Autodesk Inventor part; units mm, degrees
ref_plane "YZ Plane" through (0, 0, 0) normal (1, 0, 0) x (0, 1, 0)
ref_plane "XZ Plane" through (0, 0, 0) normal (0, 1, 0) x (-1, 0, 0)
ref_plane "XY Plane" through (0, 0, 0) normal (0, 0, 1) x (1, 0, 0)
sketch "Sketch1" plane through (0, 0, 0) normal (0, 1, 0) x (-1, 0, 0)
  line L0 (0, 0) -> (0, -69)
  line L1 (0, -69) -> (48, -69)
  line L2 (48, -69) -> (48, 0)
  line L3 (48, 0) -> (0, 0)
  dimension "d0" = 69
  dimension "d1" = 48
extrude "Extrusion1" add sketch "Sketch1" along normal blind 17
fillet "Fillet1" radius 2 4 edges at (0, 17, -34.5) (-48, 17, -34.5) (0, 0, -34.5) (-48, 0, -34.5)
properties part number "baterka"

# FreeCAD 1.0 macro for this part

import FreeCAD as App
import Part
import Sketcher

V = App.Vector


def edges_at(feature, points):
    """Names of the edges that pass closest to the given points."""
    edges = feature.Shape.Edges
    near = lambda p: min(range(len(edges)), key=lambda i: edges[i].distToShape(Part.Vertex(*p))[0])
    return sorted({f"Edge{near(p) + 1}" for p in points})


def add_polygon(sketch, points):
    """Adds a closed chain of lines whose ends are joined by coincident constraints."""
    first, n = sketch.GeometryCount, len(points)
    for a, b in zip(points, points[1:] + points[:1]):
        sketch.addGeometry(Part.LineSegment(App.Vector(*a, 0), App.Vector(*b, 0)), False)
    for i in range(n):
        sketch.addConstraint(Sketcher.Constraint("Coincident", first + i, 2, first + (i + 1) % n, 1))

doc = App.newDocument("Part")
body = doc.addObject("PartDesign::Body", "Body")

# Sketch on XZ plane
sketch1 = body.newObject("Sketcher::SketchObject", "Sketch")
sketch1.AttachmentSupport = (doc.getObject("XZ_Plane"), [""])
sketch1.MapMode = "FlatFace"
add_polygon(sketch1, [(-48, 0), (0, 0), (0, -69), (-48, -69)])  # lines 0-3
sketch1.addConstraint([
    Sketcher.Constraint("Horizontal", 0),
    Sketcher.Constraint("Vertical", 1),
    Sketcher.Constraint("Horizontal", 2),
    Sketcher.Constraint("Vertical", 3),
    Sketcher.Constraint("Coincident", 0, 2, -1, 1),
    Sketcher.Constraint("DistanceX", 0, 1, 0, 2, 48.0),
    Sketcher.Constraint("DistanceY", 1, 2, 1, 1, 69.0),
])
pad1 = body.newObject("PartDesign::Pad", "Pad")
pad1.Profile = sketch1
pad1.Length = 17
pad1.Reversed = True
doc.recompute()

fillet = body.newObject("PartDesign::Fillet", "Fillet")
fillet.Base = (pad1, edges_at(pad1, [
    (0, 17, -34.5),
    (-48, 17, -34.5),
    (0, 0, -34.5),
    (-48, 0, -34.5),
]))
fillet.Radius = 2

doc.recompute()
